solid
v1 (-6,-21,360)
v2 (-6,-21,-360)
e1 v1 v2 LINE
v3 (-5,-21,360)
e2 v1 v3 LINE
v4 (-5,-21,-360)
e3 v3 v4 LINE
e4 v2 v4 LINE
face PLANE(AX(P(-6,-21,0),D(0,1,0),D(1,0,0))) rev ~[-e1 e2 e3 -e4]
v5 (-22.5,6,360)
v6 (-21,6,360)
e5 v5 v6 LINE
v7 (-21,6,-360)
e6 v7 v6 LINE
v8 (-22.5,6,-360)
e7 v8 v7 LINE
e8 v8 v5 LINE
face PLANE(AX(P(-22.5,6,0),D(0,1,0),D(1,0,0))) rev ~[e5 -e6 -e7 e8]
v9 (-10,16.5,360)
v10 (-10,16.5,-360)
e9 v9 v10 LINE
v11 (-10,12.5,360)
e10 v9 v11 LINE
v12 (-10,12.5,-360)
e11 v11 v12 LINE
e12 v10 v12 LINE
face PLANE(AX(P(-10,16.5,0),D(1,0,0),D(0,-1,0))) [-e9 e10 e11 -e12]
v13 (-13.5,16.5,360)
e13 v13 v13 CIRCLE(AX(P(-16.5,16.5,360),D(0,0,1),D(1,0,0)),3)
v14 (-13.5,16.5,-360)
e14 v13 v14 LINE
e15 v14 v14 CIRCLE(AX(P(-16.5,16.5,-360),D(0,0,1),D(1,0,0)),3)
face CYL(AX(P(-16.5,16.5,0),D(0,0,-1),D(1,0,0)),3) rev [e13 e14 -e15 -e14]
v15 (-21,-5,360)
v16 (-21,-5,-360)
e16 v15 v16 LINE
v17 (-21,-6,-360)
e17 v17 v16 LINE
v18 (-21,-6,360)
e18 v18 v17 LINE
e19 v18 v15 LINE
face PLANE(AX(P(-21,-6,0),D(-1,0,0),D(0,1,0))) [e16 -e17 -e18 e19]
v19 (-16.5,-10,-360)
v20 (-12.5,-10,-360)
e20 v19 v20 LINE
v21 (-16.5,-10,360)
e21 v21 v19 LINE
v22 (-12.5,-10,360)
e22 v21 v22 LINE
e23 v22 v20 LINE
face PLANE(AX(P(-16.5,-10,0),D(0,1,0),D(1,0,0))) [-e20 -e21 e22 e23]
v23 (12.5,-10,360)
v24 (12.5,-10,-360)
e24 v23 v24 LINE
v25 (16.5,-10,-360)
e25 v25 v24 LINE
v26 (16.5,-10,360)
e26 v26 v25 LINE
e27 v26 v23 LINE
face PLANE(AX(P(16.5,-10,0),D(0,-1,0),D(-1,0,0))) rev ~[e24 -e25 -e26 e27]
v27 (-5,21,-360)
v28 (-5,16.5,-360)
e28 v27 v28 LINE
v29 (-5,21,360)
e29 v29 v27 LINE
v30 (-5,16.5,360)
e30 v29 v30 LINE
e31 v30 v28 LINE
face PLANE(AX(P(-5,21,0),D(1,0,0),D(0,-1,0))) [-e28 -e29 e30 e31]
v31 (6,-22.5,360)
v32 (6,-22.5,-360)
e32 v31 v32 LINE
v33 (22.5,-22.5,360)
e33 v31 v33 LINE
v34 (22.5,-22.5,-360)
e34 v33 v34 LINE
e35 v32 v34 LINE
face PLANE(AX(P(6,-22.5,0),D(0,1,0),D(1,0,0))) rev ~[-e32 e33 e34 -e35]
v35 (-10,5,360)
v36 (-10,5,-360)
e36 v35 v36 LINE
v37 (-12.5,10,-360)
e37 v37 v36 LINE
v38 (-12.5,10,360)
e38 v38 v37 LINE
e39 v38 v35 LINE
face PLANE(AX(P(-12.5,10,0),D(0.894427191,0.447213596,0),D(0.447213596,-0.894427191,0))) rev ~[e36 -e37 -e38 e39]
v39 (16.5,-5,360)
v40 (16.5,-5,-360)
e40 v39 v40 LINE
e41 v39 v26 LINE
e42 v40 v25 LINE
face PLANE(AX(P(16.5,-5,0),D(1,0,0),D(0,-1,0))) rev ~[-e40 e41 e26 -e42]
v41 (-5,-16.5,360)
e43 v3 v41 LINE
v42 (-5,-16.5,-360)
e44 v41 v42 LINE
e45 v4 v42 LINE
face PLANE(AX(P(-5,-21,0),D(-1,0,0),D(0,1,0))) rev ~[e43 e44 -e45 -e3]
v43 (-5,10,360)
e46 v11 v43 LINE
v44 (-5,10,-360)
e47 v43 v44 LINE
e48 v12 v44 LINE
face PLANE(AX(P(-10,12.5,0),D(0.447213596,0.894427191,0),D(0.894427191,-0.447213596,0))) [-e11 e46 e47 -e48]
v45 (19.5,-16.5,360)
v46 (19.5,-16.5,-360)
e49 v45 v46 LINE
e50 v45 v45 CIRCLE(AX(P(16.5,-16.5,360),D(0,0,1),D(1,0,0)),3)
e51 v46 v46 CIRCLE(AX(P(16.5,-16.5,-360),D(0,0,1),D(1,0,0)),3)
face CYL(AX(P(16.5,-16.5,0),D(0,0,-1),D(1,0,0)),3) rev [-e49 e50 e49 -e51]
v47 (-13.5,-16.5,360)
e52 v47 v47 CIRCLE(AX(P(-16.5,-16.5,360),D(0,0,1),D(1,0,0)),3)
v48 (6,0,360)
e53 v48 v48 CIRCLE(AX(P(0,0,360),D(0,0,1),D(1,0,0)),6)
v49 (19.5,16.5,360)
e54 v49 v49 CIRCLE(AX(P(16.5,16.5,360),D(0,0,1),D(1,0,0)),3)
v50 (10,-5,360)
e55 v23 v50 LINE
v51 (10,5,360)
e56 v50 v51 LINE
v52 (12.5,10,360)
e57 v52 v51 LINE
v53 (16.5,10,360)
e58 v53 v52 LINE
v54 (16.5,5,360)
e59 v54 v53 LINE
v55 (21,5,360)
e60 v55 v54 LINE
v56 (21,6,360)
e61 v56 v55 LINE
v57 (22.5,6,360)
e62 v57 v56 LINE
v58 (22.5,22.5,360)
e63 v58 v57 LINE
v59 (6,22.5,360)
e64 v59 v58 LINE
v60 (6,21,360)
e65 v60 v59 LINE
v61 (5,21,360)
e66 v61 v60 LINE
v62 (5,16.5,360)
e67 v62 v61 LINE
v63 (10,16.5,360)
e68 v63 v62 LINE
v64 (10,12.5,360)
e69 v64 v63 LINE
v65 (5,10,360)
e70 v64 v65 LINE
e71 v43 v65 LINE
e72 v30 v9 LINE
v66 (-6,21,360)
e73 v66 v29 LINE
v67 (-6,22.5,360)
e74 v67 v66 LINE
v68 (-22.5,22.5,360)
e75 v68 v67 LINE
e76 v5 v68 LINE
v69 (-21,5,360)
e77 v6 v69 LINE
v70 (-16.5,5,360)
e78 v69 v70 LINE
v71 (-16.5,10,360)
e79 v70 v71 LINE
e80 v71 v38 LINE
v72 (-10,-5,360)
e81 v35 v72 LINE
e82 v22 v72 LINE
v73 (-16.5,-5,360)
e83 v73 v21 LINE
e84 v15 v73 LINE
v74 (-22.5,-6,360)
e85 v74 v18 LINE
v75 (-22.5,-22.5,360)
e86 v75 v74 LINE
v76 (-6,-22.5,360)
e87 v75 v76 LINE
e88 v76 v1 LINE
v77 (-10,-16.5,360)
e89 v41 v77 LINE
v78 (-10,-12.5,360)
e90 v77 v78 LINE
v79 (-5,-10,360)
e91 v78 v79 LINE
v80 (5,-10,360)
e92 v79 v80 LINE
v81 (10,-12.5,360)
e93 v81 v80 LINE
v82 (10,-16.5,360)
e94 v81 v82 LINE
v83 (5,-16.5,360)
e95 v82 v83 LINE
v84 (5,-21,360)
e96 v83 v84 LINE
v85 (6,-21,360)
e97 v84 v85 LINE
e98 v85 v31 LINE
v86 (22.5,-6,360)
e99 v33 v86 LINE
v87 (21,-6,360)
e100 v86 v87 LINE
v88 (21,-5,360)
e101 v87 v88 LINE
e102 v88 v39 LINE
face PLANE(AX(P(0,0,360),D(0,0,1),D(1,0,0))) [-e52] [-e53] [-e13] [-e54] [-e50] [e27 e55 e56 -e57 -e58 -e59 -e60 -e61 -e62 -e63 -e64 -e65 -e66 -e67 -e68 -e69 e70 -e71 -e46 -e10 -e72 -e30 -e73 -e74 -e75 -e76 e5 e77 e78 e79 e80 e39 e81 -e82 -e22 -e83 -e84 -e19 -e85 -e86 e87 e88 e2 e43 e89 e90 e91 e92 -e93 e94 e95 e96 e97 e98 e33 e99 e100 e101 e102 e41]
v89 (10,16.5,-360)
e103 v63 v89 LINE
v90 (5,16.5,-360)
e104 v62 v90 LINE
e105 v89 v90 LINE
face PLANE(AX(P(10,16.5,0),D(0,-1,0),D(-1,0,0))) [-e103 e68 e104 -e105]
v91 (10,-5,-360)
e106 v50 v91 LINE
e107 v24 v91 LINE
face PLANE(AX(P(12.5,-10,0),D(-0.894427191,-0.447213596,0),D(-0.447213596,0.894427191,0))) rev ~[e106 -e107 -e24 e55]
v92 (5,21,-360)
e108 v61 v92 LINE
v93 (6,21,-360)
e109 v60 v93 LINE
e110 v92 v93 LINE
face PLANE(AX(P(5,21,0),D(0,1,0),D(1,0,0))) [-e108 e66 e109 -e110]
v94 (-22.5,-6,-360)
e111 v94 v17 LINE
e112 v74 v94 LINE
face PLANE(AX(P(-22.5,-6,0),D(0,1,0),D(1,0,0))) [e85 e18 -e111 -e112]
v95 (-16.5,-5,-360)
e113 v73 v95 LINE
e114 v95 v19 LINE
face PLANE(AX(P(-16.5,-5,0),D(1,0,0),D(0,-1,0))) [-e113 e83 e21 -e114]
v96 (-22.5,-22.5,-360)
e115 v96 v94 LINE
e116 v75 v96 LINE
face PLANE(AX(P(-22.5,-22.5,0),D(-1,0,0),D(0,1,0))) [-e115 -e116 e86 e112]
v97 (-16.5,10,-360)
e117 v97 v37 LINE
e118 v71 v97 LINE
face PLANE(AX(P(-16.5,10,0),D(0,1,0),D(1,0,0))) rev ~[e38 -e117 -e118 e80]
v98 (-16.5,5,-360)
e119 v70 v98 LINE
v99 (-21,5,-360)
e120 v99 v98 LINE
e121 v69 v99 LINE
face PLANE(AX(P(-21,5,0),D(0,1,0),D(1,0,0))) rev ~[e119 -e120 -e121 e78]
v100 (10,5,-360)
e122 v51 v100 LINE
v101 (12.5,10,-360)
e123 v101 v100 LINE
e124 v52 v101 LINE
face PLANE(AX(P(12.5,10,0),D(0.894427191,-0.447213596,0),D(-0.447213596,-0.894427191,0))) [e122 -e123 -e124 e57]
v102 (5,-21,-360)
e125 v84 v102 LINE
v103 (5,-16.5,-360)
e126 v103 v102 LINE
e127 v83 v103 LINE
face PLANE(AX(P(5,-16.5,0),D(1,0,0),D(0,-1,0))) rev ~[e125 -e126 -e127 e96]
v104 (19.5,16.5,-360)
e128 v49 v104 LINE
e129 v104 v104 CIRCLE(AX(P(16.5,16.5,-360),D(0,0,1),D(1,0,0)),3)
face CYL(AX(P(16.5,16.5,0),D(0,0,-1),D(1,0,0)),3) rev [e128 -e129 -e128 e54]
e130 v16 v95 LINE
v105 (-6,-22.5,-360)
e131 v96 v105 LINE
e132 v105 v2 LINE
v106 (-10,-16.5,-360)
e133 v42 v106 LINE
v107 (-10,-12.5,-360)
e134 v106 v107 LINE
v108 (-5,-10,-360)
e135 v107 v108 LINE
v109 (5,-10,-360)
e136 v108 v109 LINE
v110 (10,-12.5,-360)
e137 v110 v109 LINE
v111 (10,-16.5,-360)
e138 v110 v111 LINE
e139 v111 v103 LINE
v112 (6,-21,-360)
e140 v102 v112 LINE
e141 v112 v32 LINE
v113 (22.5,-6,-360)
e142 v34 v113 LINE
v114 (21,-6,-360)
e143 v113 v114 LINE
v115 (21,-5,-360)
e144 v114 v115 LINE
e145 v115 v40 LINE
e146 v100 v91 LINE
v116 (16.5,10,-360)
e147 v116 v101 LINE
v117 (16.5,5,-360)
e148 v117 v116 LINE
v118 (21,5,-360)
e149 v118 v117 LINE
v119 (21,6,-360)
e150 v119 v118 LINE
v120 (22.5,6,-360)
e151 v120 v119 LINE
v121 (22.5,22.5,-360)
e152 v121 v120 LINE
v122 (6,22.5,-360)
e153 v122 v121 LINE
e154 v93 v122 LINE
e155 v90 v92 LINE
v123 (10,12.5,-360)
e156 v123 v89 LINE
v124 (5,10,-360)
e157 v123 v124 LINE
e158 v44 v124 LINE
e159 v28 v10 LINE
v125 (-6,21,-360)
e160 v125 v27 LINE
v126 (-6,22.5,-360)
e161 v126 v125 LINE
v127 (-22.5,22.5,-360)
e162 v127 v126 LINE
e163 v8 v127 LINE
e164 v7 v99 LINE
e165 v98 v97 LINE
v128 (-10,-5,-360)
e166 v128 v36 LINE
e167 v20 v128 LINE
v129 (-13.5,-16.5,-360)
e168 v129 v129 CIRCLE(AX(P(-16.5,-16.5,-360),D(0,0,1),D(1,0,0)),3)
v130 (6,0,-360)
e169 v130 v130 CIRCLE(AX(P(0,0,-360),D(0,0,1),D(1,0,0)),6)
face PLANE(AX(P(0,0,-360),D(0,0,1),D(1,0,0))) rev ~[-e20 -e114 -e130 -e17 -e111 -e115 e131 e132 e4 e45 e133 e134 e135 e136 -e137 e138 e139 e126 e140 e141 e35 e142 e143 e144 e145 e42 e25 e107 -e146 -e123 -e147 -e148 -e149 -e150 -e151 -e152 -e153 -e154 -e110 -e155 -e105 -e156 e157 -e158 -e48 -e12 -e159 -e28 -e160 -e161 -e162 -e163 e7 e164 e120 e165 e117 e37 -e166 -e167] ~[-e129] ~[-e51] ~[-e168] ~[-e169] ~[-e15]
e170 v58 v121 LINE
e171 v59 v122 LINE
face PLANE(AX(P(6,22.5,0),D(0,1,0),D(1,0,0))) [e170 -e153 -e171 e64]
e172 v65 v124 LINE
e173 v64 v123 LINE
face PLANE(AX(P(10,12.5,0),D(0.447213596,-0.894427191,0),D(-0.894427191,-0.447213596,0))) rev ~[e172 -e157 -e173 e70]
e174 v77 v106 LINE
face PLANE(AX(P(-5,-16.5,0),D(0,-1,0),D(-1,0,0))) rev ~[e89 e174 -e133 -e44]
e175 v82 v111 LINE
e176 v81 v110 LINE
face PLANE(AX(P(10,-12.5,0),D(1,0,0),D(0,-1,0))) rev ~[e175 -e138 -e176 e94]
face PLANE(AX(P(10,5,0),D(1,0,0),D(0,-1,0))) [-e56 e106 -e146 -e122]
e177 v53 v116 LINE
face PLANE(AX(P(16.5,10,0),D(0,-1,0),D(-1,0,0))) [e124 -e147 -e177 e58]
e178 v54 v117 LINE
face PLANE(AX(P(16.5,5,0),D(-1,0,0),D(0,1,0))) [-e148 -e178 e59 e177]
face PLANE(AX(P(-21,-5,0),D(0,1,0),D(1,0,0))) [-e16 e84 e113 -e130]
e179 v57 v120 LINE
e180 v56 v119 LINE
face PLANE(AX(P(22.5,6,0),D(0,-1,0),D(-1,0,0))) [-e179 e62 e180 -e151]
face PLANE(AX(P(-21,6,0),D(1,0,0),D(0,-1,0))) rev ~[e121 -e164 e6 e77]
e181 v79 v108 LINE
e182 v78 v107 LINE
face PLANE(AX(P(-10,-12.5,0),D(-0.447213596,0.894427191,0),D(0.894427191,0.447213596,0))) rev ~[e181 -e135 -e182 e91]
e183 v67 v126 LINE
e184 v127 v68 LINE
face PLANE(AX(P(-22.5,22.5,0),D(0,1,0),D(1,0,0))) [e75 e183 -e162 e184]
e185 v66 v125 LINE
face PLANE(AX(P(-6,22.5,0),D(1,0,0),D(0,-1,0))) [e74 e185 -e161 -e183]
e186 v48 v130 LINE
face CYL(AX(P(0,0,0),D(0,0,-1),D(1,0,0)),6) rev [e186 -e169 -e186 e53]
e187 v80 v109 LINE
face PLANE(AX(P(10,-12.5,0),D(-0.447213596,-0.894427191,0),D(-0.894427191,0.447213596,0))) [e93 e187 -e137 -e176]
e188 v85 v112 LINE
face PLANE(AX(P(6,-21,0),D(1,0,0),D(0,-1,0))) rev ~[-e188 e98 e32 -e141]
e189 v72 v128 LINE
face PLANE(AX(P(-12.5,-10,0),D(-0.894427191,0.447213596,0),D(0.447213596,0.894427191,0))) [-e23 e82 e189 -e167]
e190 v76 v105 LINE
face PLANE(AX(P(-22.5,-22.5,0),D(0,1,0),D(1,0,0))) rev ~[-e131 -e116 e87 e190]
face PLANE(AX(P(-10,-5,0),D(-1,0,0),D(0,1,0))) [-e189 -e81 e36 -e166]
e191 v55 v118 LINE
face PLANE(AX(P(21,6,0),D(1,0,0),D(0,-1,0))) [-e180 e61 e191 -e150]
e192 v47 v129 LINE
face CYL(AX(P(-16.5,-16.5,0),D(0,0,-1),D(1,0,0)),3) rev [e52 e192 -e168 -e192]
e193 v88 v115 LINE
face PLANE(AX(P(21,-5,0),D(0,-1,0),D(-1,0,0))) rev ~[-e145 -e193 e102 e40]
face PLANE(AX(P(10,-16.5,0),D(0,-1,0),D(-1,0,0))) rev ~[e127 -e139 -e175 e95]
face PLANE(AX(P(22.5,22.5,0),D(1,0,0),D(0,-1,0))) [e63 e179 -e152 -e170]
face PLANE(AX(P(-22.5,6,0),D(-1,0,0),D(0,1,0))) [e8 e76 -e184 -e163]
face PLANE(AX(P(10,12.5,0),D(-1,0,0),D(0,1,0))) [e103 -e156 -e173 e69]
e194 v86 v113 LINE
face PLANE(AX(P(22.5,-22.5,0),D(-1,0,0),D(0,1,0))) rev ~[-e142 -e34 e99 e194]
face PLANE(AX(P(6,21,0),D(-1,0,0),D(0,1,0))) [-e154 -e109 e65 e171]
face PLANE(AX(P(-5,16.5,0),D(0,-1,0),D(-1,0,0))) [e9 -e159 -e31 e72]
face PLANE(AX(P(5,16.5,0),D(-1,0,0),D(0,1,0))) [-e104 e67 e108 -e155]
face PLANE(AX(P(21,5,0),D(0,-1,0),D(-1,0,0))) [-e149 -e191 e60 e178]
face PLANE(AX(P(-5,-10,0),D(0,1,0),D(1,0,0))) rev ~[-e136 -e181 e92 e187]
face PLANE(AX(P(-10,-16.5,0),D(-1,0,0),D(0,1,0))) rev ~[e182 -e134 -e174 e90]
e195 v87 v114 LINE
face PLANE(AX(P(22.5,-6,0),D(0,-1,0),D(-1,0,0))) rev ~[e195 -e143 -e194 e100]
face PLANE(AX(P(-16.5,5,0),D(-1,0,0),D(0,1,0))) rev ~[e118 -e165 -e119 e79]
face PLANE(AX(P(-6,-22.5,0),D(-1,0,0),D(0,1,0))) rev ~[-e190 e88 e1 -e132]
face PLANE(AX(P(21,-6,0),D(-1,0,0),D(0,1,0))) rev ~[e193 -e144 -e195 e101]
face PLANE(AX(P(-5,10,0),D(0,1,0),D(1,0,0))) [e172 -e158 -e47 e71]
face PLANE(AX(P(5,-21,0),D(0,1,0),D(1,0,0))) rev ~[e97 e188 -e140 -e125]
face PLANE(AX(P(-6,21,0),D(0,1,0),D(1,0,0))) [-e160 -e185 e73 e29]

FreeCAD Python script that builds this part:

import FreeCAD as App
import Part
import Sketcher

V = App.Vector
Q = App.Units.Quantity


def add_polygon(sketch, points):
    """Adds a closed chain of lines whose ends are joined by coincident constraints."""
    first, n = sketch.GeometryCount, len(points)
    for a, b in zip(points, points[1:] + points[:1]):
        sketch.addGeometry(Part.LineSegment(App.Vector(*a, 0), App.Vector(*b, 0)), False)
    for i in range(n):
        sketch.addConstraint(Sketcher.Constraint("Coincident", first + i, 2, first + (i + 1) % n, 1))

doc = App.newDocument("Part")
params = doc.addObject("Spreadsheet::Sheet", "Params")
for row, (alias, value) in enumerate([
    ("sketch1_diameter", "6 mm"),
    ("sketch1_diameter2", "12 mm"),
    ("sketch1_width", "4 mm"),
    ("sketch1_width2", "5 mm"),
    ("sketch1_width3", "10 mm"),
    ("pad1_length", "720 mm"),
], start=1):
    params.set(f"A{row}", alias)
    params.set(f"B{row}", "=" + value)
    params.setAlias(f"B{row}", alias)

body = doc.addObject("PartDesign::Body", "Body")

sketch1 = body.newObject("Sketcher::SketchObject", "Sketch")
sketch1.AttachmentSupport = (doc.getObject("XY_Plane"), [""])
sketch1.MapMode = "FlatFace"
add_polygon(sketch1, [(-6, 22.5), (-22.5, 22.5), (-22.5, 6), (-21, 6), (-21, 5), (-16.5, 5), (-16.5, 10), (-12.5, 10), (-10, 5), (-10, -5), (-12.5, -10), (-16.5, -10), (-16.5, -5), (-21, -5), (-21, -6), (-22.5, -6), (-22.5, -22.5), (-6, -22.5), (-6, -21), (-5, -21), (-5, -16.5), (-10, -16.5), (-10, -12.5), (-5, -10), (5, -10), (10, -12.5), (10, -16.5), (5, -16.5), (5, -21), (6, -21), (6, -22.5), (22.5, -22.5), (22.5, -6), (21, -6), (21, -5), (16.5, -5), (16.5, -10), (12.5, -10), (10, -5), (10, 5), (12.5, 10), (16.5, 10), (16.5, 5), (21, 5), (21, 6), (22.5, 6), (22.5, 22.5), (6, 22.5), (6, 21), (5, 21), (5, 16.5), (10, 16.5), (10, 12.5), (5, 10), (-5, 10), (-10, 12.5), (-10, 16.5), (-5, 16.5), (-5, 21), (-6, 21)])
sketch1.addGeometry(Part.Circle(V(-16.5, -16.5, 0), V(0, 0, 1), 3), False)
sketch1.addGeometry(Part.Circle(V(16.5, -16.5, 0), V(0, 0, 1), 3), False)
sketch1.addGeometry(Part.Circle(V(-16.5, 16.5, 0), V(0, 0, 1), 3), False)
sketch1.addGeometry(Part.Circle(V(0, 0, 0), V(0, 0, 1), 6), False)
sketch1.addGeometry(Part.Circle(V(16.5, 16.5, 0), V(0, 0, 1), 3), False)
sketch1.addConstraint([
    Sketcher.Constraint("Horizontal", 0),
    Sketcher.Constraint("Vertical", 1),
    Sketcher.Constraint("Horizontal", 2),
    Sketcher.Constraint("Vertical", 3),
    Sketcher.Constraint("Horizontal", 4),
    Sketcher.Constraint("Vertical", 5),
    Sketcher.Constraint("Horizontal", 6),
    Sketcher.Constraint("Vertical", 8),
    Sketcher.Constraint("Horizontal", 10),
    Sketcher.Constraint("Vertical", 11),
    Sketcher.Constraint("Horizontal", 12),
    Sketcher.Constraint("Vertical", 13),
    Sketcher.Constraint("Horizontal", 14),
    Sketcher.Constraint("Vertical", 15),
    Sketcher.Constraint("Horizontal", 16),
    Sketcher.Constraint("Vertical", 17),
    Sketcher.Constraint("Horizontal", 18),
    Sketcher.Constraint("Vertical", 19),
    Sketcher.Constraint("Horizontal", 20),
    Sketcher.Constraint("Vertical", 21),
    Sketcher.Constraint("Horizontal", 23),
    Sketcher.Constraint("Vertical", 25),
    Sketcher.Constraint("Horizontal", 26),
    Sketcher.Constraint("Vertical", 27),
    Sketcher.Constraint("Horizontal", 28),
    Sketcher.Constraint("Vertical", 29),
    Sketcher.Constraint("Horizontal", 30),
    Sketcher.Constraint("Vertical", 31),
    Sketcher.Constraint("Horizontal", 32),
    Sketcher.Constraint("Vertical", 33),
    Sketcher.Constraint("Horizontal", 34),
    Sketcher.Constraint("Vertical", 35),
    Sketcher.Constraint("Horizontal", 36),
    Sketcher.Constraint("Vertical", 38),
    Sketcher.Constraint("Horizontal", 40),
    Sketcher.Constraint("Vertical", 41),
    Sketcher.Constraint("Horizontal", 42),
    Sketcher.Constraint("Vertical", 43),
    Sketcher.Constraint("Horizontal", 44),
    Sketcher.Constraint("Vertical", 45),
    Sketcher.Constraint("Horizontal", 46),
    Sketcher.Constraint("Vertical", 47),
    Sketcher.Constraint("Horizontal", 48),
    Sketcher.Constraint("Vertical", 49),
    Sketcher.Constraint("Horizontal", 50),
    Sketcher.Constraint("Vertical", 51),
    Sketcher.Constraint("Horizontal", 53),
    Sketcher.Constraint("Vertical", 55),
    Sketcher.Constraint("Horizontal", 56),
    Sketcher.Constraint("Vertical", 57),
    Sketcher.Constraint("Horizontal", 58),
    Sketcher.Constraint("Vertical", 59),
    Sketcher.Constraint("Coincident", 63, 3, -1, 1),
    Sketcher.Constraint("Equal", 60, 61),
    Sketcher.Constraint("Equal", 61, 62),
    Sketcher.Constraint("Equal", 62, 64),
    Sketcher.Constraint("Symmetric", 61, 3, 62, 3, -1, 1),
    Sketcher.Constraint("Symmetric", 60, 3, 64, 3, -1, 1),
    Sketcher.Constraint("Symmetric", 0, 2, 30, 2, -1, 1),
    Sketcher.Constraint("Symmetric", 2, 2, 32, 2, -1, 1),
    Sketcher.Constraint("Symmetric", 4, 2, 34, 2, -1, 1),
    Sketcher.Constraint("Symmetric", 6, 2, 36, 2, -1, 1),
    Sketcher.Constraint("Symmetric", 7, 2, 37, 2, -1, 1),
    Sketcher.Constraint("Symmetric", 9, 2, 39, 2, -1, 1),
    Sketcher.Constraint("Symmetric", 11, 2, 41, 2, -1, 1),
    Sketcher.Constraint("Symmetric", 13, 2, 43, 2, -1, 1),
    Sketcher.Constraint("Symmetric", 15, 2, 45, 2, -1, 1),
    Sketcher.Constraint("Symmetric", 17, 2, 47, 2, -1, 1),
    Sketcher.Constraint("Symmetric", 19, 2, 49, 2, -1, 1),
    Sketcher.Constraint("Symmetric", 21, 2, 51, 2, -1, 1),
    Sketcher.Constraint("Symmetric", 22, 2, 52, 2, -1, 1),
    Sketcher.Constraint("Symmetric", 24, 2, 54, 2, -1, 1),
    Sketcher.Constraint("Symmetric", 26, 2, 56, 2, -1, 1),
    Sketcher.Constraint("Symmetric", 28, 2, 58, 2, -1, 1),
    Sketcher.Constraint("Symmetric", 60, 3, 61, 3, -2),
    Sketcher.Constraint("Symmetric", 21, 2, 24, 2, -2),
    Sketcher.Constraint("Symmetric", 19, 2, 26, 2, -2),
    Sketcher.Constraint("Symmetric", 17, 2, 28, 2, -2),
    Sketcher.Constraint("Symmetric", 15, 2, 30, 2, -2),
    Sketcher.Constraint("Symmetric", 13, 2, 32, 2, -2),
    Sketcher.Constraint("Symmetric", 11, 2, 34, 2, -2),
    Sketcher.Constraint("Symmetric", 9, 2, 36, 2, -2),
    Sketcher.Constraint("Perpendicular", 7, 22),
    Sketcher.Constraint("Perpendicular", 9, 24),
    Sketcher.Constraint("Perpendicular", 24, 39),
    Sketcher.Constraint("Perpendicular", 39, 54),
    Sketcher.Constraint("Horizontal", 4, 2, 7, 2),
    Sketcher.Constraint("Horizontal", 8, 2, 11, 2),
    Sketcher.Constraint("Horizontal", 61, 3, 19, 2),
    Sketcher.Constraint("Horizontal", 10, 2, 22, 2),
    Sketcher.Constraint("Vertical", 62, 3, 4, 2),
    Sketcher.Constraint("Vertical", 8, 2, 20, 2),
    Sketcher.Constraint("Vertical", 19, 2, 22, 2),
    Sketcher.Constraint("Equal", 46, 1),
    Sketcher.Constraint("Equal", 58, 3),
    Sketcher.Constraint("Equal", 56, 5),
    Sketcher.Constraint("Equal", 53, 8),
    Sketcher.Constraint("Equal", 44, 17),
    Sketcher.Constraint("Equal", 42, 19),
    Sketcher.Constraint("Diameter", 60, Q("6 mm")),
    Sketcher.Constraint("Diameter", 63, Q("12 mm")),
    Sketcher.Constraint("DistanceX", 6, 1, 6, 2, Q("4 mm")),
    Sketcher.Constraint("DistanceX", 20, 2, 20, 1, Q("5 mm")),
    Sketcher.Constraint("DistanceX", 23, 1, 23, 2, Q("10 mm")),
    Sketcher.Constraint("DistanceX", 0, 2, 0, 1, Q("16.5 mm")),
    Sketcher.Constraint("DistanceX", 2, 1, 2, 2, Q("1.5 mm")),
    Sketcher.Constraint("DistanceY", -1, 1, 1, 2, Q("6 mm")),
    Sketcher.Constraint("DistanceX", 60, 3, -1, 1, Q("16.5 mm")),
])
sketch1.setExpression("Constraints[159]", "Params.sketch1_diameter")
sketch1.setExpression("Constraints[160]", "Params.sketch1_diameter2")
sketch1.setExpression("Constraints[161]", "Params.sketch1_width")
sketch1.setExpression("Constraints[162]", "Params.sketch1_width2")
sketch1.setExpression("Constraints[163]", "Params.sketch1_width3")
pad1 = body.newObject("PartDesign::Pad", "Pad")
pad1.Profile = sketch1
pad1.setExpression("Length", "Params.pad1_length")
pad1.Midplane = True

doc.recompute()
